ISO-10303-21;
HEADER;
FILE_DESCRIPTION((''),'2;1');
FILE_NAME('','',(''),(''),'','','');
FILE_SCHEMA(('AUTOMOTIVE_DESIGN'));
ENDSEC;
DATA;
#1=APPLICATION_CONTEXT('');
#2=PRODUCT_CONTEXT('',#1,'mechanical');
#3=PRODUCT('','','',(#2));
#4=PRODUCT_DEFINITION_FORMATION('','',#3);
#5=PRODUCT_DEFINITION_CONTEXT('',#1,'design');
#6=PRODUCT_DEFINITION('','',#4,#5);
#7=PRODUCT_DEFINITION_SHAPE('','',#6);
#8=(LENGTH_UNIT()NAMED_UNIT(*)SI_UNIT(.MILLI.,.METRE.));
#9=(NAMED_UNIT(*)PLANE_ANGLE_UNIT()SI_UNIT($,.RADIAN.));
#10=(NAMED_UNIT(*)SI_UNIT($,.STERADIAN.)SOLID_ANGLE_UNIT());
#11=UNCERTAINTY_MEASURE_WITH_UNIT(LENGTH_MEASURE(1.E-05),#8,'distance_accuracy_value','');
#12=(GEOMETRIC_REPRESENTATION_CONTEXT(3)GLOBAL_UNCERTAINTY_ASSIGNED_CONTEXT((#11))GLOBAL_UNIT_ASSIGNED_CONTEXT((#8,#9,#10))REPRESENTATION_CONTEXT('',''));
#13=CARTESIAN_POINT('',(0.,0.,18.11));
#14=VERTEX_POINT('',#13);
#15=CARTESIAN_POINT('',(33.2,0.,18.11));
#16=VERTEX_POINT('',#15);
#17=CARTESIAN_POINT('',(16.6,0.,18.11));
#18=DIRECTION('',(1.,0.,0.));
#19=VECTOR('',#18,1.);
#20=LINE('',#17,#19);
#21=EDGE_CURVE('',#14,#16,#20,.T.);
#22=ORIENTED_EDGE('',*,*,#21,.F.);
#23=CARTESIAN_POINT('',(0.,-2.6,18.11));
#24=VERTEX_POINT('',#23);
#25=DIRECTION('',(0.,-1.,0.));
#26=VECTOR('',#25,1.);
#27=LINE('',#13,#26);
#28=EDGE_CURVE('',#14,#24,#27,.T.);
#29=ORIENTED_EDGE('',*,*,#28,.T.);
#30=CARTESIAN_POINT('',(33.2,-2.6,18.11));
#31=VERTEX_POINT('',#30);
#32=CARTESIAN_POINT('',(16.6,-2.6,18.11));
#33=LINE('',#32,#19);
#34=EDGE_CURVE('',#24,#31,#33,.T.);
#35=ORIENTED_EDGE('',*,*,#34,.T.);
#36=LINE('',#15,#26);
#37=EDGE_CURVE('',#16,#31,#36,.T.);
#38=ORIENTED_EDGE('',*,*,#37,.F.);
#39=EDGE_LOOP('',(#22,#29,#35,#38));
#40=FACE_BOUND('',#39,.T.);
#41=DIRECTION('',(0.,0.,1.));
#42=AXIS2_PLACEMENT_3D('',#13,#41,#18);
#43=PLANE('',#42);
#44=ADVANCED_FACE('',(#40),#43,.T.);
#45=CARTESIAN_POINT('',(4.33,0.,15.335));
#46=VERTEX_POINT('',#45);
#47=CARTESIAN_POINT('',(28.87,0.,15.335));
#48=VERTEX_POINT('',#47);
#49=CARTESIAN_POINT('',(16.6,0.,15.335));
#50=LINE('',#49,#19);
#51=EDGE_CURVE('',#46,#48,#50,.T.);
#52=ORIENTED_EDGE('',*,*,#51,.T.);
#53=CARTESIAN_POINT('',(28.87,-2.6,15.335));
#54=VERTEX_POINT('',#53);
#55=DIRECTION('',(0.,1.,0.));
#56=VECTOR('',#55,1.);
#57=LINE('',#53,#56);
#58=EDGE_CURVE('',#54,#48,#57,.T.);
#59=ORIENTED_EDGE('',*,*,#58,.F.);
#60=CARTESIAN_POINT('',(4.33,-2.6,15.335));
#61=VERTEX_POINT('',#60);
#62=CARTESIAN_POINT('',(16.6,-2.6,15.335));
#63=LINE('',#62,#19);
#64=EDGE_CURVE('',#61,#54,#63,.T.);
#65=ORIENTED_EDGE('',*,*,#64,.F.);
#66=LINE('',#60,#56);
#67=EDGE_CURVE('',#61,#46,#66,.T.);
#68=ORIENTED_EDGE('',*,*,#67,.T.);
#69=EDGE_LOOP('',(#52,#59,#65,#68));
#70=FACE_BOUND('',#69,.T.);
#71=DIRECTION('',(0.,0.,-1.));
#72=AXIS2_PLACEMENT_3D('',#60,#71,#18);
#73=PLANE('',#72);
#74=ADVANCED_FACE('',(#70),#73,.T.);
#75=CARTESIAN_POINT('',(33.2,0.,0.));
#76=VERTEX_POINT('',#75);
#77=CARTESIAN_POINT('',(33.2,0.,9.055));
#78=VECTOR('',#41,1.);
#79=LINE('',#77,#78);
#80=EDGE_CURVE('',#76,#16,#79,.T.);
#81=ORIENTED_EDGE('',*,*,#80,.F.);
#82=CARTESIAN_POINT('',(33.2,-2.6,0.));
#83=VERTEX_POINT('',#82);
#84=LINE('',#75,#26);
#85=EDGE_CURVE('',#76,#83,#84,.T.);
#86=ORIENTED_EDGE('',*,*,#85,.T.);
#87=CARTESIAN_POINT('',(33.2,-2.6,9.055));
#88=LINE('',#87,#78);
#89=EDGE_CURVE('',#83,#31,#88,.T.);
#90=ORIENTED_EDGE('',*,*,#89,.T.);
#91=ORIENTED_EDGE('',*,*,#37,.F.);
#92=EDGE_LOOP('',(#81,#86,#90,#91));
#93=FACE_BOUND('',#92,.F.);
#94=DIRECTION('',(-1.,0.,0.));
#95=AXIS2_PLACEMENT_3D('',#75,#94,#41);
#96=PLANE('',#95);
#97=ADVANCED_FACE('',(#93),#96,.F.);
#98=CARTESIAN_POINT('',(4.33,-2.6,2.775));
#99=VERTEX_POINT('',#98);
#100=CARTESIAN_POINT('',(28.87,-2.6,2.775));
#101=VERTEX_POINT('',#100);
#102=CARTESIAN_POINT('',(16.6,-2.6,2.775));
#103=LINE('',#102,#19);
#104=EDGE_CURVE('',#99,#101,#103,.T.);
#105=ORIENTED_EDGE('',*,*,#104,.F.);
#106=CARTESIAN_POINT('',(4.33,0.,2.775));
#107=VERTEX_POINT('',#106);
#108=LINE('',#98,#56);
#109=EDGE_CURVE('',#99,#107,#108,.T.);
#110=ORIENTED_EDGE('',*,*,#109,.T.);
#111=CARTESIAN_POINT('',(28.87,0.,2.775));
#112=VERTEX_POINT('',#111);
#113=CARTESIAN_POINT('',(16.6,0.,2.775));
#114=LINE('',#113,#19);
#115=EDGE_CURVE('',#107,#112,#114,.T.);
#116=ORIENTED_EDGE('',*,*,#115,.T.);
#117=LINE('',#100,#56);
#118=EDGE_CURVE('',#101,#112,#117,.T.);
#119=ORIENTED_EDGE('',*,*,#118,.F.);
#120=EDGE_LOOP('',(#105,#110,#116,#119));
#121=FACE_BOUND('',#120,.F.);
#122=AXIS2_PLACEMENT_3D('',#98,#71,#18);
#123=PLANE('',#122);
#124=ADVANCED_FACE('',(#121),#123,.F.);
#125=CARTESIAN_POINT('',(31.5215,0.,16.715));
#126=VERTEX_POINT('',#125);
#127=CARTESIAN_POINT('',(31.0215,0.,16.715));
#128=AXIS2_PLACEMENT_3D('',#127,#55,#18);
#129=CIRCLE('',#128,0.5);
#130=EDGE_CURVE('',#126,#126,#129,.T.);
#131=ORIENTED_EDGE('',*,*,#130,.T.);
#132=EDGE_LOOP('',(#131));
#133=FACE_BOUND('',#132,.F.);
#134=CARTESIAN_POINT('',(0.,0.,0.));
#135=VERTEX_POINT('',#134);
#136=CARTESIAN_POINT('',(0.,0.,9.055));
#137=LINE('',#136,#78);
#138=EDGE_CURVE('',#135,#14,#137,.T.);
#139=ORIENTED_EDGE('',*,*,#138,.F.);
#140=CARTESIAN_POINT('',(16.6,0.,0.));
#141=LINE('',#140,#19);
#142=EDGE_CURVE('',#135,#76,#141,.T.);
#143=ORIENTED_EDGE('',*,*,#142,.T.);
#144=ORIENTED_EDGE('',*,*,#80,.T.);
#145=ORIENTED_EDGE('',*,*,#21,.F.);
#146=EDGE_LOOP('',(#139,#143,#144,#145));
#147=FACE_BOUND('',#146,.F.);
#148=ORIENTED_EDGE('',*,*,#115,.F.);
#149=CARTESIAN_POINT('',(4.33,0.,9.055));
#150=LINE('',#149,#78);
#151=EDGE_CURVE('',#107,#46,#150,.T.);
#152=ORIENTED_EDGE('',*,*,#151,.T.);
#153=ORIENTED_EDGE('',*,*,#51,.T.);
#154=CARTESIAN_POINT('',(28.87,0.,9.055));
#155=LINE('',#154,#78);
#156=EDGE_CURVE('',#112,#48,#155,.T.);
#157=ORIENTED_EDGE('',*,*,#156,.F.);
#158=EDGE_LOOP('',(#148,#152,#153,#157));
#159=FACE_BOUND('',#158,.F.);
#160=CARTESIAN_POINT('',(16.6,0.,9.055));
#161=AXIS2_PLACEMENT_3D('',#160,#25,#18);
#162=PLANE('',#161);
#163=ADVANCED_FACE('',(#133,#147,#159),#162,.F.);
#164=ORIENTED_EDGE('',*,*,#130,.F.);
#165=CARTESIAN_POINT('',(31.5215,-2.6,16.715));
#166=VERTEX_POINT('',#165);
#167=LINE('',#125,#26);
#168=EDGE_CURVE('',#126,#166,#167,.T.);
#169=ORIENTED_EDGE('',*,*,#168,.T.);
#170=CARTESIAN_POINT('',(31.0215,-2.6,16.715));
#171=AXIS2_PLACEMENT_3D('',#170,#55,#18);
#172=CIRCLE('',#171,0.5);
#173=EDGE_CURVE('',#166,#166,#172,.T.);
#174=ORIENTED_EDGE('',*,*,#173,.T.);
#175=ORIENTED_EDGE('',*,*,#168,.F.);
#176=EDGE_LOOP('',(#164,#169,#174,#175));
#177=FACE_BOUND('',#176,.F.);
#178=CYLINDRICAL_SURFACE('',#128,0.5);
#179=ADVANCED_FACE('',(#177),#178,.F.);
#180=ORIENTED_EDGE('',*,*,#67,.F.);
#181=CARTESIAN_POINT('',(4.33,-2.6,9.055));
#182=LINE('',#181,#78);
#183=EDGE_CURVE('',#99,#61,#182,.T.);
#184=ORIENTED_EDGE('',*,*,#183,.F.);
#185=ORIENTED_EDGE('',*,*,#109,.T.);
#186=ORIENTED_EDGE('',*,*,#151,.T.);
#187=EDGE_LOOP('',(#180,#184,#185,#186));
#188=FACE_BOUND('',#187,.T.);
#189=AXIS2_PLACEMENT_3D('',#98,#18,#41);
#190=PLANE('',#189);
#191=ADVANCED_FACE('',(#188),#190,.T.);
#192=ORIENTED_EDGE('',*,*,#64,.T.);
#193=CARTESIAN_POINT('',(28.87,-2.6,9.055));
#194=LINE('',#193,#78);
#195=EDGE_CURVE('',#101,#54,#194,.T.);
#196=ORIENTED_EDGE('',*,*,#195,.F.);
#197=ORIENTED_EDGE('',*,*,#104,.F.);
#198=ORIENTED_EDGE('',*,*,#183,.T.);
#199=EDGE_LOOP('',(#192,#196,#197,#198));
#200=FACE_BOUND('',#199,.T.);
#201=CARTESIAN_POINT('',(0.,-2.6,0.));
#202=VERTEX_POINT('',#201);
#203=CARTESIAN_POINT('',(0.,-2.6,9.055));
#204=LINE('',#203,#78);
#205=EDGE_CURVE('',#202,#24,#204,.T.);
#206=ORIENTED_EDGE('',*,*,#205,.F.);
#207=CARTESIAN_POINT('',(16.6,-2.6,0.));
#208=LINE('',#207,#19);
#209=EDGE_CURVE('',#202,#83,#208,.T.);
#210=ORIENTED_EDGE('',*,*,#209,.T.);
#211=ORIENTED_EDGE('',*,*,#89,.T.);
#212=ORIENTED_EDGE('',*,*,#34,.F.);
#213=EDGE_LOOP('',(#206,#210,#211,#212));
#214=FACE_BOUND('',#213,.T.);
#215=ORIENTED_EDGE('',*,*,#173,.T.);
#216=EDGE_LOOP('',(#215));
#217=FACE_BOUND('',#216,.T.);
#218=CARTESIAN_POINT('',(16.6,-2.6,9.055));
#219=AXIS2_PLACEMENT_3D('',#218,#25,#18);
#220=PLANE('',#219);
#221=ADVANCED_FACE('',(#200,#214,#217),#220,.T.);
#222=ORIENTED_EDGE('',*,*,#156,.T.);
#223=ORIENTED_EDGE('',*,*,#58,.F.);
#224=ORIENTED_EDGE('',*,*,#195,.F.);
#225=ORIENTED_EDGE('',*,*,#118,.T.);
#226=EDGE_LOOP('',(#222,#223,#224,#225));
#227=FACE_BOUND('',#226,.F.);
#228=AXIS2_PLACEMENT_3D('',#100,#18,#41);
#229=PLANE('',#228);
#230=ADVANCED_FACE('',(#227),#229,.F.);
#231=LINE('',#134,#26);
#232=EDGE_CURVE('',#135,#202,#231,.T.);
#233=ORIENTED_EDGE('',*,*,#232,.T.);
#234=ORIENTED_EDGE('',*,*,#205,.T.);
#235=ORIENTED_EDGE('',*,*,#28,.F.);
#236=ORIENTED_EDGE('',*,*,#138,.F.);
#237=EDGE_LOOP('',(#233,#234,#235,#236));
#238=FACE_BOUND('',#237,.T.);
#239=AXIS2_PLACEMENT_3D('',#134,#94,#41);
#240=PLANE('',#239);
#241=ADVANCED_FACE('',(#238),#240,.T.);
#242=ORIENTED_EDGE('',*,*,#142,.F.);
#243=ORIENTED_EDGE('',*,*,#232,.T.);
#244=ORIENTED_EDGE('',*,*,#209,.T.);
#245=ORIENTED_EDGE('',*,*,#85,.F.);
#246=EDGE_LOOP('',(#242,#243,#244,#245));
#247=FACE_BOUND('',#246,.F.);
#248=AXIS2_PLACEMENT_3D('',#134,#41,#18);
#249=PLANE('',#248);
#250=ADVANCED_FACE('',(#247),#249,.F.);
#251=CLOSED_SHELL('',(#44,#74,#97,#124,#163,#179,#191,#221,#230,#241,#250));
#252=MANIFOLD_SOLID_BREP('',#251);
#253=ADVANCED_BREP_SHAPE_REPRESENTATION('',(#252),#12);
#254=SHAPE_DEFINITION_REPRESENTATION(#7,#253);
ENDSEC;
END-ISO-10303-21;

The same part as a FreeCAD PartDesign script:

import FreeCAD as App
import Part
import Sketcher


def add_polygon(sketch, points):
    """Adds a closed chain of lines whose ends are joined by coincident constraints."""
    first, n = sketch.GeometryCount, len(points)
    for a, b in zip(points, points[1:] + points[:1]):
        sketch.addGeometry(Part.LineSegment(App.Vector(*a, 0), App.Vector(*b, 0)), False)
    for i in range(n):
        sketch.addConstraint(Sketcher.Constraint("Coincident", first + i, 2, first + (i + 1) % n, 1))

doc = App.newDocument("Part")
body = doc.addObject("PartDesign::Body", "Body")

sketch1 = body.newObject("Sketcher::SketchObject", "Sketch")
sketch1.AttachmentSupport = (doc.getObject("XZ_Plane"), [""])
sketch1.MapMode = "FlatFace"
add_polygon(sketch1, [(0, 18), (0, 0), (33, 0), (33, 18)])
sketch1.addConstraint([
    Sketcher.Constraint("Vertical", 0),
    Sketcher.Constraint("Horizontal", 1),
    Sketcher.Constraint("Vertical", 2),
    Sketcher.Constraint("Horizontal", 3),
    Sketcher.Constraint("Coincident", 0, 2, -1, 1),
    Sketcher.Constraint("DistanceX", 1, 1, 1, 2, 33.2),
    Sketcher.Constraint("DistanceY", 0, 2, 0, 1, 18.11),
])
pad1 = body.newObject("PartDesign::Pad", "Pad")
pad1.Profile = sketch1
pad1.Length = 2.6

sketch2 = body.newObject("Sketcher::SketchObject", "Sketch001")
sketch2.AttachmentSupport = (doc.getObject("XZ_Plane"), [""])
sketch2.MapMode = "FlatFace"
sketch2.AttachmentOffset = App.Placement(App.Vector(0, 0, 2.6), App.Rotation())
add_polygon(sketch2, [(4, 15), (4, 3), (29, 3), (29, 15)])
sketch2.addConstraint([
    Sketcher.Constraint("Vertical", 0),
    Sketcher.Constraint("Horizontal", 1),
    Sketcher.Constraint("Vertical", 2),
    Sketcher.Constraint("Horizontal", 3),
    Sketcher.Constraint("DistanceX", 1, 1, 1, 2, 24.54),
    Sketcher.Constraint("DistanceY", 0, 2, 0, 1, 12.56),
    Sketcher.Constraint("DistanceX", -1, 1, 0, 2, 4.33),
    Sketcher.Constraint("DistanceY", -1, 1, 0, 2, 2.775),
])
pocket1 = body.newObject("PartDesign::Pocket", "Pocket")
pocket1.Profile = sketch2
pocket1.Length = 2.6

sketch3 = body.newObject("Sketcher::SketchObject", "Sketch002")
sketch3.AttachmentSupport = (doc.getObject("XZ_Plane"), [""])
sketch3.MapMode = "FlatFace"
sketch3.addGeometry(Part.Circle(App.Vector(31, 16.7, 0), App.Vector(0, 0, 1), 0.5), False)
sketch3.addConstraint([
    Sketcher.Constraint("Diameter", 0, 1.0),
    Sketcher.Constraint("DistanceY", -1, 1, 0, 3, 16.715),
    Sketcher.Constraint("DistanceX", -1, 1, 0, 3, 31.0215),
])
pocket2 = body.newObject("PartDesign::Pocket", "Pocket001")
pocket2.Profile = sketch3
pocket2.Length = 5
pocket2.Reversed = True

doc.recompute()
